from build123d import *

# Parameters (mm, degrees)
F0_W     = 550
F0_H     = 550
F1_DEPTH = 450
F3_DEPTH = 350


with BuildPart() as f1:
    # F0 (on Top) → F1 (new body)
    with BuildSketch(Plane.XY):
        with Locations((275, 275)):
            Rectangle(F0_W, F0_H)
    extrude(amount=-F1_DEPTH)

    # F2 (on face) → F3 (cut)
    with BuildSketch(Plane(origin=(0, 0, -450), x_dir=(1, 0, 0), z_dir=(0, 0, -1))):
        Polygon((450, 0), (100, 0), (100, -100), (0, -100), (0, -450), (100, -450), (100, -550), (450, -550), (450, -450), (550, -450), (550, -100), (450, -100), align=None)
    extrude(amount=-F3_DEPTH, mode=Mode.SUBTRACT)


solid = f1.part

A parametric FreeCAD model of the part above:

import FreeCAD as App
import Part
import Sketcher

V = App.Vector
Q = App.Units.Quantity


def add_polygon(sketch, points):
    """Adds a closed chain of lines whose ends are joined by coincident constraints."""
    first, n = sketch.GeometryCount, len(points)
    for a, b in zip(points, points[1:] + points[:1]):
        sketch.addGeometry(Part.LineSegment(App.Vector(*a, 0), App.Vector(*b, 0)), False)
    for i in range(n):
        sketch.addConstraint(Sketcher.Constraint("Coincident", first + i, 2, first + (i + 1) % n, 1))

doc = App.newDocument("Part")
body = doc.addObject("PartDesign::Body", "Body")

# Sketch on XY plane
sketch1 = body.newObject("Sketcher::SketchObject", "Sketch")
sketch1.AttachmentSupport = (doc.getObject("XY_Plane"), [""])
sketch1.MapMode = "FlatFace"
add_polygon(sketch1, [(0, 550), (0, 0), (550, 0), (550, 550)])  # lines 0-3
sketch1.addConstraint([
    Sketcher.Constraint("Vertical", 0),
    Sketcher.Constraint("Horizontal", 1),
    Sketcher.Constraint("Vertical", 2),
    Sketcher.Constraint("Horizontal", 3),
    Sketcher.Constraint("Coincident", 0, 2, -1, 1),
    Sketcher.Constraint("Equal", 3, 0),
    Sketcher.Constraint("DistanceX", 1, 1, 1, 2, Q("550 mm")),
])
pad1 = body.newObject("PartDesign::Pad", "Pad")
pad1.Profile = sketch1
pad1.Length = 450
pad1.Reversed = True

# Sketch on XY plane
sketch2 = body.newObject("Sketcher::SketchObject", "Sketch001")
sketch2.AttachmentSupport = (doc.getObject("XY_Plane"), [""])
sketch2.MapMode = "FlatFace"
sketch2.AttachmentOffset = App.Placement(V(0, 0, -450), App.Rotation())
add_polygon(sketch2, [(450, 0), (100, 0), (100, 100), (0, 100), (0, 450), (100, 450), (100, 550), (450, 550), (450, 450), (550, 450), (550, 100), (450, 100)])  # lines 0-11
sketch2.addConstraint([
    Sketcher.Constraint("Horizontal", 0),
    Sketcher.Constraint("Vertical", 1),
    Sketcher.Constraint("Horizontal", 2),
    Sketcher.Constraint("Vertical", 3),
    Sketcher.Constraint("Horizontal", 4),
    Sketcher.Constraint("Vertical", 5),
    Sketcher.Constraint("Horizontal", 6),
    Sketcher.Constraint("Vertical", 7),
    Sketcher.Constraint("Horizontal", 8),
    Sketcher.Constraint("Vertical", 9),
    Sketcher.Constraint("Horizontal", 10),
    Sketcher.Constraint("Vertical", 11),
    Sketcher.Constraint("PointOnObject", 0, 2, -1),
    Sketcher.Constraint("PointOnObject", 2, 2, -2),
    Sketcher.Constraint("Horizontal", 4, 2, 7, 2),
    Sketcher.Constraint("Horizontal", 2, 2, 9, 2),
    Sketcher.Constraint("Vertical", 1, 2, 4, 2),
    Sketcher.Constraint("Vertical", 7, 2, 10, 2),
    Sketcher.Constraint("Equal", 4, 8),
    Sketcher.Constraint("Equal", 10, 1),
    Sketcher.Constraint("Equal", 6, 3),
    Sketcher.Constraint("Equal", 1, 5),
    Sketcher.Constraint("DistanceX", 0, 2, 0, 1, Q("350 mm")),
    Sketcher.Constraint("DistanceX", 2, 2, 2, 1, Q("100 mm")),
])
pocket1 = body.newObject("PartDesign::Pocket", "Pocket")
pocket1.Profile = sketch2
pocket1.Length = 350
pocket1.Reversed = True

doc.recompute()
